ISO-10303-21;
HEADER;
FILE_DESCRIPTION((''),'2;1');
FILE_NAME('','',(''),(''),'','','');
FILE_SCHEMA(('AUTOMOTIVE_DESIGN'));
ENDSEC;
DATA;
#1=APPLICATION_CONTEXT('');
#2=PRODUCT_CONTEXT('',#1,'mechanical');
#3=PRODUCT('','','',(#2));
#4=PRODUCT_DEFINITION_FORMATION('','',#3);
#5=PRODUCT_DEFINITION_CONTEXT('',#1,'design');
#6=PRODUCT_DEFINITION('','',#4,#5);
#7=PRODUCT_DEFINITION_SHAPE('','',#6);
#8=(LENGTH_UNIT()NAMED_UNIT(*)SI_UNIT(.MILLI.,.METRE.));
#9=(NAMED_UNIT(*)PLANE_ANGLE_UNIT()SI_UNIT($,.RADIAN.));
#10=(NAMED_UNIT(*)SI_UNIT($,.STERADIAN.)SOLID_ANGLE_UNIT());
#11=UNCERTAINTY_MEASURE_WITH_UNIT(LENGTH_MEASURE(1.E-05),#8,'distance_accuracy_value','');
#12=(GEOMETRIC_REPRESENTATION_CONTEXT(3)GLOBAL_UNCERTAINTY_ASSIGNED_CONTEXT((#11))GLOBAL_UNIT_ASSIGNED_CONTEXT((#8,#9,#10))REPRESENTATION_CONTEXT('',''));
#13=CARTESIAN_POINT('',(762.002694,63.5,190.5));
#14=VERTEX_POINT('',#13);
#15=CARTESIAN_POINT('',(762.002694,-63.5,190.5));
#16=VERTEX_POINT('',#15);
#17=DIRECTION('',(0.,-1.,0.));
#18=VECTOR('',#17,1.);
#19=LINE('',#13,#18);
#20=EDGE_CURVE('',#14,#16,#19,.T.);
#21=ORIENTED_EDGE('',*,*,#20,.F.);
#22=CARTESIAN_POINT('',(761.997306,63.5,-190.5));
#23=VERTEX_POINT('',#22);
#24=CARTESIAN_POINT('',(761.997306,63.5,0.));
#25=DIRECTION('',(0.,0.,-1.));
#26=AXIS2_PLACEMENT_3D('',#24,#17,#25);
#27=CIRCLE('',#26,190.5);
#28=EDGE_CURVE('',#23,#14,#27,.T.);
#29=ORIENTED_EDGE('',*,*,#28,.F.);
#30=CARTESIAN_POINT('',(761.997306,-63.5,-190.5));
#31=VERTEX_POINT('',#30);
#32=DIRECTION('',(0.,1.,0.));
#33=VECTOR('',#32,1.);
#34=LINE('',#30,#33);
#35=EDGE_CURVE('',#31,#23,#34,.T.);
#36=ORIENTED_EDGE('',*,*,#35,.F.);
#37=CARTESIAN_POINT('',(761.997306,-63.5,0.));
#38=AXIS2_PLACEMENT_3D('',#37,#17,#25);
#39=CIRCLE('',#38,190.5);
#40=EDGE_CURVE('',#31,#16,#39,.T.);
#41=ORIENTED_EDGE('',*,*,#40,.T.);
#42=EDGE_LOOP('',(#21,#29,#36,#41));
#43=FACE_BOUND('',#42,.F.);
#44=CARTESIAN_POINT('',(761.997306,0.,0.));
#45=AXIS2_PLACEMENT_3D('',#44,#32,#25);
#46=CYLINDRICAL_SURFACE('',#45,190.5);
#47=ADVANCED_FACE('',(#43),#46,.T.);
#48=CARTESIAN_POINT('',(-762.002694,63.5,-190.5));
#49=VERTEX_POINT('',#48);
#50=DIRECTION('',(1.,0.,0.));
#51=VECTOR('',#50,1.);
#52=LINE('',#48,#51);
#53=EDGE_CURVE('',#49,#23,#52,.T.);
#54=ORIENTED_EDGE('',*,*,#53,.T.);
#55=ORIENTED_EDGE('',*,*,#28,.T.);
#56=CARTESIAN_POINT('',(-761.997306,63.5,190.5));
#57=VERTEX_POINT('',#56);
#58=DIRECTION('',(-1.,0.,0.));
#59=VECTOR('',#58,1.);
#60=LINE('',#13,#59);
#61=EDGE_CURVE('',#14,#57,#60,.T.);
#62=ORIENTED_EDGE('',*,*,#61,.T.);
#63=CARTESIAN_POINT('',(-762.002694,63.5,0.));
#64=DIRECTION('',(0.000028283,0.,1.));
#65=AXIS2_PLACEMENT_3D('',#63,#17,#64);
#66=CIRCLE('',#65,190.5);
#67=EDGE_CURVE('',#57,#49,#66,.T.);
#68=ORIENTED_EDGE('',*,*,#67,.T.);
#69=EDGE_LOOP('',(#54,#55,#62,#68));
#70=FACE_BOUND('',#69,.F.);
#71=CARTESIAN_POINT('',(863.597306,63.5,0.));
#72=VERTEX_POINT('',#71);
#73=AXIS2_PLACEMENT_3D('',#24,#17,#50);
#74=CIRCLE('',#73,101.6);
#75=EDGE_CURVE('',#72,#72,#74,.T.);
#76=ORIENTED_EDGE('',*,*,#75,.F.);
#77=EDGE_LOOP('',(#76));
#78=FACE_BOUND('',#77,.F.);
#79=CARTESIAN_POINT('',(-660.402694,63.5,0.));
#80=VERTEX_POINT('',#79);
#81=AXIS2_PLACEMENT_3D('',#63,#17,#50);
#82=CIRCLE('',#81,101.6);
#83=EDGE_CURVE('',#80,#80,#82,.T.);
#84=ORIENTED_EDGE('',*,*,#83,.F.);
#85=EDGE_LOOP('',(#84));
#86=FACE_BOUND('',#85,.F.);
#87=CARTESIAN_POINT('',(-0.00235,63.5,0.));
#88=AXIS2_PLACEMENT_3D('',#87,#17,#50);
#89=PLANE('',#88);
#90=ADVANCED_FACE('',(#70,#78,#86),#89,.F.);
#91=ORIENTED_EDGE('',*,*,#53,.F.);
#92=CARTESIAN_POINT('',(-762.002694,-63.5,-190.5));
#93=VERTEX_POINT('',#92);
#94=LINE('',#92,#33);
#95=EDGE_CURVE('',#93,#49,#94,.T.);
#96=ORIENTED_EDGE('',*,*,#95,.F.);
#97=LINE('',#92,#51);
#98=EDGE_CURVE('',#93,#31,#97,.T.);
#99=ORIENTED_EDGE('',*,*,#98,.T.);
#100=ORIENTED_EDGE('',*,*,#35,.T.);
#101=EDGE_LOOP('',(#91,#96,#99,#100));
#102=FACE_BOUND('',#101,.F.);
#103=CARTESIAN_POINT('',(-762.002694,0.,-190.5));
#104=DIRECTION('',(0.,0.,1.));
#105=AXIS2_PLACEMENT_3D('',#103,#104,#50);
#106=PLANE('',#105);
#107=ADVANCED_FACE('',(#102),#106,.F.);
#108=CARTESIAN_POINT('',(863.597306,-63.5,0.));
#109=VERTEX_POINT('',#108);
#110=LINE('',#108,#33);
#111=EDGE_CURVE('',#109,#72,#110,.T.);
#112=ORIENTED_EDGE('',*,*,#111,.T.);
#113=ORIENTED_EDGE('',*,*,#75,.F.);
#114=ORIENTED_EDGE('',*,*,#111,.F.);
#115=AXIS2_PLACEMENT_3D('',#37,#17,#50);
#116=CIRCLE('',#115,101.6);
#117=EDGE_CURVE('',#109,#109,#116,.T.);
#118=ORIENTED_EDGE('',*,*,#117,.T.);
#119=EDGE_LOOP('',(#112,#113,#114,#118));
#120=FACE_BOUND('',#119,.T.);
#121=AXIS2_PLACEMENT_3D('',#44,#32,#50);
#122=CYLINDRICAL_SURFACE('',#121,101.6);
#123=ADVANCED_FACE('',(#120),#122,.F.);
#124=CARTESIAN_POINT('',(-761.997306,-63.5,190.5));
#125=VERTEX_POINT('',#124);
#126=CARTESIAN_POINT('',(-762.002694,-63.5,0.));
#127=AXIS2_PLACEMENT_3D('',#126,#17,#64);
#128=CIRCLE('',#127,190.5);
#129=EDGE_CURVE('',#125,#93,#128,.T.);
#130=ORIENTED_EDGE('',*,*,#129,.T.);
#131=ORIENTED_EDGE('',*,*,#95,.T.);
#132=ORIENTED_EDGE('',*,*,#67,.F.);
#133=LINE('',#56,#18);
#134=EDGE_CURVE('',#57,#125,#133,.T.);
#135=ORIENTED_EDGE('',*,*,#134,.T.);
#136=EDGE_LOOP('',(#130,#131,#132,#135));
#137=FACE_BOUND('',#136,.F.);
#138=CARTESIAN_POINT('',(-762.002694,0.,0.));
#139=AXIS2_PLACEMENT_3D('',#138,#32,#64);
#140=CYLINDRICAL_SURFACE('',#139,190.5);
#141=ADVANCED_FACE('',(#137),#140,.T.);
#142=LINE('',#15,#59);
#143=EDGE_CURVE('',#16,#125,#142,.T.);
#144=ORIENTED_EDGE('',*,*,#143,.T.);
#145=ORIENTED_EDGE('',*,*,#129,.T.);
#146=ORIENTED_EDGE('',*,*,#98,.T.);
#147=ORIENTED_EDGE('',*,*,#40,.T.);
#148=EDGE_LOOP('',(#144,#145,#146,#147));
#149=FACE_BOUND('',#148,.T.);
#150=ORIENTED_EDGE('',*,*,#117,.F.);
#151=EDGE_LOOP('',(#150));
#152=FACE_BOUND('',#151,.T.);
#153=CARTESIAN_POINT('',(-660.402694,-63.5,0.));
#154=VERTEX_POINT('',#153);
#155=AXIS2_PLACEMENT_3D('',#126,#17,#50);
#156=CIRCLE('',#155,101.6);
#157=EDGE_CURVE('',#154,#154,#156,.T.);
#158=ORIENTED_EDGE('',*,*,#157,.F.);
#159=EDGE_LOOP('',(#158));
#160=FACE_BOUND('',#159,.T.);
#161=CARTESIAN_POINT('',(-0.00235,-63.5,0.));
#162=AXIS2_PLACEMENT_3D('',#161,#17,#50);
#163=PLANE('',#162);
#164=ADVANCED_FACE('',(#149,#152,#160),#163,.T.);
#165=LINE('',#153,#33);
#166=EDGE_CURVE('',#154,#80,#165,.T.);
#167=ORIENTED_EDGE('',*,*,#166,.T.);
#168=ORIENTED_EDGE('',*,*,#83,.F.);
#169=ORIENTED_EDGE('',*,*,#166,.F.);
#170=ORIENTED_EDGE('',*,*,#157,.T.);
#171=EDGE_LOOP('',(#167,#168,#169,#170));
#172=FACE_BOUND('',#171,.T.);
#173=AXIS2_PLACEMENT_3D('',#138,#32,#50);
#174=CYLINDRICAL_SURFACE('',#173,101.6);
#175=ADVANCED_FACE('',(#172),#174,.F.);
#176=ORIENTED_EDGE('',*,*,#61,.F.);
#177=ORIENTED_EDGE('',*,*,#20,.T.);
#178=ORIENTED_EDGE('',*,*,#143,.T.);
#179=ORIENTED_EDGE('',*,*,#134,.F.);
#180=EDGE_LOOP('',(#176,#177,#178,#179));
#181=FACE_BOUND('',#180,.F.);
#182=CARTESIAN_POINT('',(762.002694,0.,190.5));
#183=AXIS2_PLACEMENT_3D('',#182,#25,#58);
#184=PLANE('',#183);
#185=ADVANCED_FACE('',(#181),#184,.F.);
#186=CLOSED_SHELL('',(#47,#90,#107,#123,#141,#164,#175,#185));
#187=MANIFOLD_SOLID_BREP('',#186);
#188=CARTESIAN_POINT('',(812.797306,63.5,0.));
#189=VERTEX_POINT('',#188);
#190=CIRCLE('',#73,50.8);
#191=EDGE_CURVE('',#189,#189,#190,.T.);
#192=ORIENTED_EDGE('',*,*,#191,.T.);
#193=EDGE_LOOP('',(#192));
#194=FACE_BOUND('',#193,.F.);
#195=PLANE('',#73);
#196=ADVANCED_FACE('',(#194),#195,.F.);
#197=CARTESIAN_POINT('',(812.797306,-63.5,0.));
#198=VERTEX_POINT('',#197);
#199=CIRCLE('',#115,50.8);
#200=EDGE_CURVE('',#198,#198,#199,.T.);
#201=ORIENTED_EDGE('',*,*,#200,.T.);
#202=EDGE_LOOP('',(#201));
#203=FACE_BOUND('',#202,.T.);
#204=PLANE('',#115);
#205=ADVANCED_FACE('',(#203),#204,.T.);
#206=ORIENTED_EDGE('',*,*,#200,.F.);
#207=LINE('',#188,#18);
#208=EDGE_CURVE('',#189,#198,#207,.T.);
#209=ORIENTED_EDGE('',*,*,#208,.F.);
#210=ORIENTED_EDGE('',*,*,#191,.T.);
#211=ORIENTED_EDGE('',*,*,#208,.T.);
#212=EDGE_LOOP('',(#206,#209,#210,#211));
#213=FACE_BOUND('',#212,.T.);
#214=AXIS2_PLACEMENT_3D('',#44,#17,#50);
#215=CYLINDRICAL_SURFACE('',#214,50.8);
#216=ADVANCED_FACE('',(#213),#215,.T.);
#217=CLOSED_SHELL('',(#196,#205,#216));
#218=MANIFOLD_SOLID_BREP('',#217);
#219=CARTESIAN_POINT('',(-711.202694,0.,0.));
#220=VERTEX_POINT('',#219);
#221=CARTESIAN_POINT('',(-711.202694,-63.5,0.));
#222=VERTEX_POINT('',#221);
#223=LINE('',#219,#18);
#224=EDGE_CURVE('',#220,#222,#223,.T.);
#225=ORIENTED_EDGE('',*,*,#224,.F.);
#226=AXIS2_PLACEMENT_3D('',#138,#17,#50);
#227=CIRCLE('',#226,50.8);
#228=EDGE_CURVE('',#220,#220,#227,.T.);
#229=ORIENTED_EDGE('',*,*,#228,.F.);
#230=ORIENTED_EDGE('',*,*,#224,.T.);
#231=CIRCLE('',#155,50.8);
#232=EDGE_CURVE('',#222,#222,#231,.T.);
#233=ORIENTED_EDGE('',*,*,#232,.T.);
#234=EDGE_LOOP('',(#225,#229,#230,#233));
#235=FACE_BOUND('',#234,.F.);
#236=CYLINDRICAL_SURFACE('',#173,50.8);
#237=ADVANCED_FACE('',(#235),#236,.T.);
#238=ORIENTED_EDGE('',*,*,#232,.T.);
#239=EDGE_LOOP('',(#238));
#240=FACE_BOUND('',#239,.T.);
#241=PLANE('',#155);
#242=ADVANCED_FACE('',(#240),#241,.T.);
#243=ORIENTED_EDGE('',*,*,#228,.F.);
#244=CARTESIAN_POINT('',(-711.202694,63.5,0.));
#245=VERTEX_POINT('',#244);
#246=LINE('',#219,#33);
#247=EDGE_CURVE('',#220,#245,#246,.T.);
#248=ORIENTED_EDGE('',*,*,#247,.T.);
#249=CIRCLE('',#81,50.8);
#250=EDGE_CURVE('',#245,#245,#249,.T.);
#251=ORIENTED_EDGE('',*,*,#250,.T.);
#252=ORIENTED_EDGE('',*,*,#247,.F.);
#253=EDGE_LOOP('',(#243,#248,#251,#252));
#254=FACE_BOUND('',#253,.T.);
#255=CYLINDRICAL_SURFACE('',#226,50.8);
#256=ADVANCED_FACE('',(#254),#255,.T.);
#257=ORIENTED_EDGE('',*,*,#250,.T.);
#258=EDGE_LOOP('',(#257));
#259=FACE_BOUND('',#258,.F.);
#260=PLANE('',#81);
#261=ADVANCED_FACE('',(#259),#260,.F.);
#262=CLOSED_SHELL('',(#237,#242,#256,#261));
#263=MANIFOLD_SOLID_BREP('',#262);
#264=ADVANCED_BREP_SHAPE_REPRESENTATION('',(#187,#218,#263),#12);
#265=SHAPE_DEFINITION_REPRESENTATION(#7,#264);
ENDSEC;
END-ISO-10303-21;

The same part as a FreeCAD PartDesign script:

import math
import FreeCAD as App
import Part
import Sketcher

V = App.Vector
Q = App.Units.Quantity

doc = App.newDocument("Part")
body = doc.addObject("PartDesign::Body", "Body")
body.AllowCompound = True

# Sketch on XZ plane
sketch1 = body.newObject("Sketcher::SketchObject", "Sketch")
sketch1.AttachmentSupport = (doc.getObject("XZ_Plane"), [""])
sketch1.MapMode = "FlatFace"
sketch1.addGeometry([
    Part.ArcOfCircle(Part.Circle(V(761.997306, 0, 0), V(0, 0, 1), 190.5), math.radians(-90), math.radians(89.998379)),  # 0
    Part.LineSegment(V(762.002694, 190.5, 0), V(-761.997306, 190.5, 0)),  # 1
    Part.ArcOfCircle(Part.Circle(V(-762.002694, 0, 0), V(0, 0, 1), 190.5), math.radians(89.998379), math.radians(270)),  # 2
    Part.LineSegment(V(-762.002694, -190.5, 0), V(761.997306, -190.5, 0)),  # 3
    Part.Circle(V(-762.002694, 0, 0), V(0, 0, 1), 101.6),  # 4
    Part.Circle(V(761.997306, 0, 0), V(0, 0, 1), 101.6),  # 5
    Part.Circle(V(-762.002694, 0, 0), V(0, 0, 1), 50.8),  # 6
    Part.Circle(V(761.997306, 0, 0), V(0, 0, 1), 50.8),  # 7
], False)
sketch1.addConstraint([
    Sketcher.Constraint("Coincident", 0, 2, 1, 1),
    Sketcher.Constraint("Coincident", 1, 2, 2, 1),
    Sketcher.Constraint("Tangent", 2, 2, 3, 1),
    Sketcher.Constraint("Tangent", 3, 2, 0, 1),
    Sketcher.Constraint("Horizontal", 1),
    Sketcher.Constraint("Horizontal", 3),
    Sketcher.Constraint("Coincident", 4, 3, 2, 3),
    Sketcher.Constraint("Coincident", 5, 3, 0, 3),
    Sketcher.Constraint("Coincident", 6, 3, 2, 3),
    Sketcher.Constraint("Coincident", 7, 3, 0, 3),
    Sketcher.Constraint("Equal", 4, 5),
    Sketcher.Constraint("Equal", 6, 7),
    Sketcher.Constraint("Symmetric", 0, 2, 2, 2, -1, 1),
    Sketcher.Constraint("Equal", 1, 3),
    Sketcher.Constraint("Diameter", 4, Q("8 in")),
    Sketcher.Constraint("Diameter", 6, Q("4 in")),
    Sketcher.Constraint("Radius", 0, Q("7.5 in")),
    Sketcher.Constraint("DistanceX", 1, 2, 1, 1, Q("60 in")),
    Sketcher.Constraint("DistanceX", 0, 3, 0, 2, Q("0.005388 mm")),
])
pad1 = body.newObject("PartDesign::Pad", "Pad")
pad1.Profile = sketch1
pad1.Length = Q("5 in")
pad1.Midplane = True

doc.recompute()
